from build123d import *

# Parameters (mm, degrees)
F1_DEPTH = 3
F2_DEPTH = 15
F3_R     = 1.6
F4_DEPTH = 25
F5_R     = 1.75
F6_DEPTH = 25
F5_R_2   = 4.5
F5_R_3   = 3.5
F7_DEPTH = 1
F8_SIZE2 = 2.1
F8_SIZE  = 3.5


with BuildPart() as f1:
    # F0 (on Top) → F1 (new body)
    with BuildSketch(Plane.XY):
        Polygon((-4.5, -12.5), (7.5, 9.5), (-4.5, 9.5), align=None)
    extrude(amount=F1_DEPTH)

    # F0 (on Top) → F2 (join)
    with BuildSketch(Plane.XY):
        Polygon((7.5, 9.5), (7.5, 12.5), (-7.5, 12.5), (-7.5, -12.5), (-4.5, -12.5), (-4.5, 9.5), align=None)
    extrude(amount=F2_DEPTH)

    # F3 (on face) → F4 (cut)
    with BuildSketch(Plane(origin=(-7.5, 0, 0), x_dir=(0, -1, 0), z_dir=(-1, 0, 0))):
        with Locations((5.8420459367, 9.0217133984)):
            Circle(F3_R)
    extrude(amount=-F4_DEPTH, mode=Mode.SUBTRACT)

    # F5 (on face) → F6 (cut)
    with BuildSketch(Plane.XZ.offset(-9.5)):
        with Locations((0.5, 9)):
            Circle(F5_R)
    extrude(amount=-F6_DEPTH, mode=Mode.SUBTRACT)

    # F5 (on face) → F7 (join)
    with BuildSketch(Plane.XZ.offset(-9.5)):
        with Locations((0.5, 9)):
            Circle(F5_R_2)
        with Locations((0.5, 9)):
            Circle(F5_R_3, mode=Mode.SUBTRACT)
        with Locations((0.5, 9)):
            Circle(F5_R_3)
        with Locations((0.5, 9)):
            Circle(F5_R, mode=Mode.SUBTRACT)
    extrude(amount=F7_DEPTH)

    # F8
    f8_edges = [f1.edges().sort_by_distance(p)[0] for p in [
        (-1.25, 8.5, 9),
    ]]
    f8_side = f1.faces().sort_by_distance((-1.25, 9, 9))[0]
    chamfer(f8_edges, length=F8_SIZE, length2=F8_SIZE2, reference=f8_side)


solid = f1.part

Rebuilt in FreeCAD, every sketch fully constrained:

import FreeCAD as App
import Part
import Sketcher


def edges_at(feature, points):
    """Names of the edges that pass closest to the given points."""
    edges = feature.Shape.Edges
    near = lambda p: min(range(len(edges)), key=lambda i: edges[i].distToShape(Part.Vertex(*p))[0])
    return sorted({f"Edge{near(p) + 1}" for p in points})

doc = App.newDocument("Part")
body = doc.addObject("PartDesign::Body", "Body")

sketch1 = body.newObject("Sketcher::SketchObject", "Sketch")
sketch1.AttachmentSupport = (doc.getObject("XY_Plane"), [""])
sketch1.MapMode = "FlatFace"
sketch1.addGeometry([
    Part.LineSegment(App.Vector(-4.5, -12.5, 0), App.Vector(7.5, 9.5, 0)),
    Part.LineSegment(App.Vector(7.5, 9.5, 0), App.Vector(-4.5, 9.5, 0)),
    Part.LineSegment(App.Vector(-4.5, 9.5, 0), App.Vector(-4.5, -12.5, 0)),
], False)
sketch1.addConstraint([
    Sketcher.Constraint("Coincident", 0, 2, 1, 1),
    Sketcher.Constraint("Coincident", 1, 2, 2, 1),
    Sketcher.Constraint("Coincident", 2, 2, 0, 1),
    Sketcher.Constraint("Horizontal", 1),
    Sketcher.Constraint("Vertical", 2),
    Sketcher.Constraint("DistanceX", 1, 2, 1, 1, 12.0),
    Sketcher.Constraint("DistanceY", 2, 2, 2, 1, 22.0),
    Sketcher.Constraint("DistanceX", -1, 1, 0, 2, 7.5),
    Sketcher.Constraint("DistanceY", -1, 1, 0, 2, 9.5),
])
pad1 = body.newObject("PartDesign::Pad", "Pad")
pad1.Profile = sketch1
pad1.Length = 3

sketch2 = body.newObject("Sketcher::SketchObject", "Sketch001")
sketch2.AttachmentSupport = (doc.getObject("XY_Plane"), [""])
sketch2.MapMode = "FlatFace"
sketch2.addGeometry([
    Part.LineSegment(App.Vector(7.5, 9.5, 0), App.Vector(7.5, 12.5, 0)),
    Part.LineSegment(App.Vector(7.5, 12.5, 0), App.Vector(-7.5, 12.5, 0)),
    Part.LineSegment(App.Vector(-7.5, 12.5, 0), App.Vector(-7.5, -12.5, 0)),
    Part.LineSegment(App.Vector(-7.5, -12.5, 0), App.Vector(-4.5, -12.5, 0)),
    Part.LineSegment(App.Vector(-4.5, -12.5, 0), App.Vector(-4.5, 9.5, 0)),
    Part.LineSegment(App.Vector(-4.5, 9.5, 0), App.Vector(7.5, 9.5, 0)),
], False)
sketch2.addConstraint([
    Sketcher.Constraint("Coincident", 0, 2, 1, 1),
    Sketcher.Constraint("Coincident", 1, 2, 2, 1),
    Sketcher.Constraint("Coincident", 2, 2, 3, 1),
    Sketcher.Constraint("Coincident", 3, 2, 4, 1),
    Sketcher.Constraint("Coincident", 4, 2, 5, 1),
    Sketcher.Constraint("Coincident", 5, 2, 0, 1),
    Sketcher.Constraint("Vertical", 0),
    Sketcher.Constraint("Horizontal", 1),
    Sketcher.Constraint("Vertical", 2),
    Sketcher.Constraint("Horizontal", 3),
    Sketcher.Constraint("Vertical", 4),
    Sketcher.Constraint("Horizontal", 5),
    Sketcher.Constraint("Symmetric", 0, 2, 2, 2, -1, 1),
    Sketcher.Constraint("Equal", 3, 0),
    Sketcher.Constraint("DistanceX", 1, 2, 1, 1, 15.0),
    Sketcher.Constraint("DistanceX", 3, 1, 3, 2, 3.0),
    Sketcher.Constraint("DistanceY", 2, 2, 2, 1, 25.0),
])
pad2 = body.newObject("PartDesign::Pad", "Pad001")
pad2.Profile = sketch2
pad2.Length = 15

sketch3 = body.newObject("Sketcher::SketchObject", "Sketch002")
sketch3.AttachmentSupport = (doc.getObject("YZ_Plane"), [""])
sketch3.MapMode = "FlatFace"
sketch3.AttachmentOffset = App.Placement(App.Vector(0, 0, -7.5), App.Rotation())
sketch3.addGeometry(Part.Circle(App.Vector(-5.842046, 9.021713, 0), App.Vector(0, 0, 1), 1.6), False)
sketch3.addConstraint([
    Sketcher.Constraint("Diameter", 0, 3.2),
    Sketcher.Constraint("DistanceX", 0, 3, -1, 1, 5.842046),
    Sketcher.Constraint("DistanceY", -1, 1, 0, 3, 9.021713),
])
pocket1 = body.newObject("PartDesign::Pocket", "Pocket")
pocket1.Profile = sketch3
pocket1.Length = 25
pocket1.Reversed = True

sketch4 = body.newObject("Sketcher::SketchObject", "Sketch003")
sketch4.AttachmentSupport = (doc.getObject("XZ_Plane"), [""])
sketch4.MapMode = "FlatFace"
sketch4.AttachmentOffset = App.Placement(App.Vector(0, 0, -9.5), App.Rotation())
sketch4.addGeometry(Part.Circle(App.Vector(0.5, 9, 0), App.Vector(0, 0, 1), 1.75), False)
sketch4.addConstraint([
    Sketcher.Constraint("Diameter", 0, 3.5),
    Sketcher.Constraint("DistanceY", -1, 1, 0, 3, 9.0),
    Sketcher.Constraint("DistanceX", -1, 1, 0, 3, 0.5),
])
pocket2 = body.newObject("PartDesign::Pocket", "Pocket001")
pocket2.Profile = sketch4
pocket2.Length = 25

sketch5 = body.newObject("Sketcher::SketchObject", "Sketch004")
sketch5.AttachmentSupport = (doc.getObject("XZ_Plane"), [""])
sketch5.MapMode = "FlatFace"
sketch5.AttachmentOffset = App.Placement(App.Vector(0, 0, -9.5), App.Rotation())
sketch5.addGeometry([
    Part.Circle(App.Vector(0.5, 9, 0), App.Vector(0, 0, 1), 4.5),
    Part.Circle(App.Vector(0.5, 9, 0), App.Vector(0, 0, 1), 1.75),
], False)
sketch5.addConstraint([
    Sketcher.Constraint("Coincident", 1, 3, 0, 3),
    Sketcher.Constraint("Diameter", 0, 9.0),
    Sketcher.Constraint("Diameter", 1, 3.5),
    Sketcher.Constraint("DistanceY", -1, 1, 0, 3, 9.0),
    Sketcher.Constraint("DistanceX", -1, 1, 0, 3, 0.5),
])
pad3 = body.newObject("PartDesign::Pad", "Pad002")
pad3.Profile = sketch5
pad3.Length = 1
doc.recompute()

chamfer = body.newObject("PartDesign::Chamfer", "Chamfer")
chamfer.Base = (pad3, edges_at(pad3, [(-1.25, 8.5, 9)]))
chamfer.ChamferType = "Two distances"
chamfer.Size = 3.5
chamfer.Size2 = 2.1
chamfer.FlipDirection = True

doc.recompute()
